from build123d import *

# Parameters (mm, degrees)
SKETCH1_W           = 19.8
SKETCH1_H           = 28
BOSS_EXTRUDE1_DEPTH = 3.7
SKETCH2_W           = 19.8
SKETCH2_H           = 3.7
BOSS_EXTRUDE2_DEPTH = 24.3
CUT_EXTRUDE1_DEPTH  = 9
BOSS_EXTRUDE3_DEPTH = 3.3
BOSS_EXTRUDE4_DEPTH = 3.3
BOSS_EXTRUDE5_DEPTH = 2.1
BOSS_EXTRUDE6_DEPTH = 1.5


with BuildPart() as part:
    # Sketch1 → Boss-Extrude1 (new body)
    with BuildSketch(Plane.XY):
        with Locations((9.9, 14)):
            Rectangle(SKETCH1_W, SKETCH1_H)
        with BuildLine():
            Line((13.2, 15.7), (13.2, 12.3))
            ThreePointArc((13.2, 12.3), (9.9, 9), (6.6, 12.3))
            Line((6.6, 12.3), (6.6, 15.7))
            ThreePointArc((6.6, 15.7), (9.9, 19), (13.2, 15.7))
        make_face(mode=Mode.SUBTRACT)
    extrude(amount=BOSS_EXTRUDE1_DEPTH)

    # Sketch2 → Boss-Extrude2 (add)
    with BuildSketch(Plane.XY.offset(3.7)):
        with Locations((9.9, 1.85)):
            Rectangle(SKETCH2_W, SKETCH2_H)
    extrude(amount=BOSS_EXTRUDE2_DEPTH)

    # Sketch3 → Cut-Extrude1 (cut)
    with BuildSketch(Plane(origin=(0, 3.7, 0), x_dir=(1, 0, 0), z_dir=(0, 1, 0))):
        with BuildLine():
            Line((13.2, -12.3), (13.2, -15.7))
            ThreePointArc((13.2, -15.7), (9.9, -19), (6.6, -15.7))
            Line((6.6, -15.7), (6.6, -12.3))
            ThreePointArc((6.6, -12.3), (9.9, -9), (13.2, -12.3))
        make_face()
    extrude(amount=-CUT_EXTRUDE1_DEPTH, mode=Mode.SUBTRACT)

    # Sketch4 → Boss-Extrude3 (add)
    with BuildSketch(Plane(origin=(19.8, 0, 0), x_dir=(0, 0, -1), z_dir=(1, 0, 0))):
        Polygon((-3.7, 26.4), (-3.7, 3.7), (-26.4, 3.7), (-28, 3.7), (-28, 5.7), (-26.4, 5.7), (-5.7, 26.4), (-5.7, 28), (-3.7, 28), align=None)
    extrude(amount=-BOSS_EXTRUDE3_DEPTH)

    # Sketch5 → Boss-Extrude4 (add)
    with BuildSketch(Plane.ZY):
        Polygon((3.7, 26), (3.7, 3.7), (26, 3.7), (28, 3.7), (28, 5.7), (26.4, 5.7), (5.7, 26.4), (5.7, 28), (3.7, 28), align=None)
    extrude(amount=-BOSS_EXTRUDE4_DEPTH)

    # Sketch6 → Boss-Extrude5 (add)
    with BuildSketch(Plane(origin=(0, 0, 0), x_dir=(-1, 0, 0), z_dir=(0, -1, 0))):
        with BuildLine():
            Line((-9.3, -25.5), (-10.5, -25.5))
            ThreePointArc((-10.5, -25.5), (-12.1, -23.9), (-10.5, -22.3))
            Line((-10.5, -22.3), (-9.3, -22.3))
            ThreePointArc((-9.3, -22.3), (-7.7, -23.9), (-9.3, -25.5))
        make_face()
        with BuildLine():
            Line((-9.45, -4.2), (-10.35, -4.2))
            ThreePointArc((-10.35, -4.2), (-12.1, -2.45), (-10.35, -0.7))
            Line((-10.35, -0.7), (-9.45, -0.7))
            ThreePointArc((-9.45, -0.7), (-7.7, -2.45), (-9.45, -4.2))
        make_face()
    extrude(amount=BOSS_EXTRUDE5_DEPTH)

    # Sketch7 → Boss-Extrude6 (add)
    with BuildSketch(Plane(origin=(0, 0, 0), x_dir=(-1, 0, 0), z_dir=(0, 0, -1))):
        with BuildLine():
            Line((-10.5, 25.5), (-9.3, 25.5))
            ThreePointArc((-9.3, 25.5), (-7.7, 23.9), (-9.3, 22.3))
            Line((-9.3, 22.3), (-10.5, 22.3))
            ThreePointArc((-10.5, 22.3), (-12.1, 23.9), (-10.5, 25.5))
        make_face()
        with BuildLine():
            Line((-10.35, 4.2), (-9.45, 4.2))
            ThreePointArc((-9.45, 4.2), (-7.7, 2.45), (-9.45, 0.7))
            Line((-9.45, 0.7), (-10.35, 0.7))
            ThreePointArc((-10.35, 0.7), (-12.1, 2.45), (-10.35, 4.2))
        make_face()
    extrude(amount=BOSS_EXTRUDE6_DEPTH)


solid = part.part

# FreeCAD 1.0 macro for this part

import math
import FreeCAD as App
import Part
import Sketcher

V = App.Vector
Q = App.Units.Quantity

doc = App.newDocument("Part")
params = doc.addObject("Spreadsheet::Sheet", "Params")
for row, (alias, value) in enumerate([
    ("sketch1_radius", "3.3 mm"),
    ("sketch1_height", "28 mm"),
    ("sketch1_width", "19.8 mm"),
    ("sketch1_height2", "3.4 mm"),
    ("pad1_length", "3.7 mm"),
    ("sketch2_width", "19.8 mm"),
    ("sketch2_height", "3.7 mm"),
    ("pad2_length", "24.3 mm"),
    ("sketch3_radius", "3.3 mm"),
    ("sketch3_height", "3.4 mm"),
    ("pocket1_length", "9 mm"),
    ("sketch4_width", "2 mm"),
    ("sketch4_width2", "24.3 mm"),
    ("sketch4_width3", "1.6 mm"),
    ("pad3_length", "3.3 mm"),
    ("sketch5_width", "2 mm"),
    ("sketch5_width2", "1.6 mm"),
    ("sketch5_width3", "24.3 mm"),
    ("pad4_length", "3.3 mm"),
    ("sketch6_radius", "1.6 mm"),
    ("sketch6_radius2", "1.75 mm"),
    ("sketch6_width", "1.2 mm"),
    ("sketch6_width2", "0.9 mm"),
    ("pad5_length", "2.1 mm"),
    ("sketch7_radius", "1.6 mm"),
    ("sketch7_radius2", "1.75 mm"),
    ("sketch7_width", "1.2 mm"),
    ("sketch7_width2", "0.9 mm"),
    ("pad6_length", "1.5 mm"),
], start=1):
    params.set(f"A{row}", alias)
    params.set(f"B{row}", "=" + value)
    params.setAlias(f"B{row}", alias)

body = doc.addObject("PartDesign::Body", "Body")

# Sketch on XY plane
sketch1 = body.newObject("Sketcher::SketchObject", "Sketch")
sketch1.AttachmentSupport = (doc.getObject("XY_Plane"), [""])
sketch1.MapMode = "FlatFace"
sketch1.addGeometry([
    Part.LineSegment(V(0, 28, 0), V(0, 0, 0)),  # 0
    Part.LineSegment(V(0, 0, 0), V(19.8, 0, 0)),  # 1
    Part.LineSegment(V(19.8, 0, 0), V(19.8, 28, 0)),  # 2
    Part.LineSegment(V(19.8, 28, 0), V(0, 28, 0)),  # 3
    Part.ArcOfCircle(Part.Circle(V(9.9, 15.7, 0), V(0, 0, 1), 3.3), math.radians(0), math.radians(180)),  # 4
    Part.LineSegment(V(13.2, 15.7, 0), V(13.2, 12.3, 0)),  # 5
    Part.ArcOfCircle(Part.Circle(V(9.9, 12.3, 0), V(0, 0, 1), 3.3), math.radians(180), math.radians(360)),  # 6
    Part.LineSegment(V(6.6, 12.3, 0), V(6.6, 15.7, 0)),  # 7
], False)
sketch1.addConstraint([
    Sketcher.Constraint("Coincident", 0, 2, 1, 1),
    Sketcher.Constraint("Coincident", 1, 2, 2, 1),
    Sketcher.Constraint("Coincident", 2, 2, 3, 1),
    Sketcher.Constraint("Coincident", 3, 2, 0, 1),
    Sketcher.Constraint("Tangent", 4, 1, 5, 1),
    Sketcher.Constraint("Tangent", 5, 2, 6, 2),
    Sketcher.Constraint("Tangent", 6, 1, 7, 1),
    Sketcher.Constraint("Tangent", 7, 2, 4, 2),
    Sketcher.Constraint("Vertical", 0),
    Sketcher.Constraint("Horizontal", 1),
    Sketcher.Constraint("Vertical", 2),
    Sketcher.Constraint("Horizontal", 3),
    Sketcher.Constraint("Vertical", 5),
    Sketcher.Constraint("Vertical", 7),
    Sketcher.Constraint("Coincident", 0, 2, -1, 1),
    Sketcher.Constraint("Radius", 4, Q("3.3 mm")),
    Sketcher.Constraint("DistanceY", 0, 2, 0, 1, Q("28 mm")),
    Sketcher.Constraint("DistanceX", 1, 1, 1, 2, Q("19.8 mm")),
    Sketcher.Constraint("DistanceY", 5, 2, 5, 1, Q("3.4 mm")),
    Sketcher.Constraint("DistanceX", -1, 1, 4, 3, Q("9.9 mm")),
    Sketcher.Constraint("DistanceY", -1, 1, 4, 3, Q("15.7 mm")),
])
sketch1.setExpression("Constraints[15]", "Params.sketch1_radius")
sketch1.setExpression("Constraints[16]", "Params.sketch1_height")
sketch1.setExpression("Constraints[17]", "Params.sketch1_width")
sketch1.setExpression("Constraints[18]", "Params.sketch1_height2")
pad1 = body.newObject("PartDesign::Pad", "Pad")
pad1.Profile = sketch1
pad1.setExpression("Length", "Params.pad1_length")

# Sketch on XY plane
sketch2 = body.newObject("Sketcher::SketchObject", "Sketch001")
sketch2.AttachmentSupport = (doc.getObject("XY_Plane"), [""])
sketch2.MapMode = "FlatFace"
sketch2.AttachmentOffset = App.Placement(V(0, 0, 3.7), App.Rotation())
sketch2.addGeometry([
    Part.LineSegment(V(0, 3.7, 0), V(0, 0, 0)),
    Part.LineSegment(V(0, 0, 0), V(19.8, 0, 0)),
    Part.LineSegment(V(19.8, 0, 0), V(19.8, 3.7, 0)),
    Part.LineSegment(V(19.8, 3.7, 0), V(0, 3.7, 0)),
], False)
sketch2.addConstraint([
    Sketcher.Constraint("Coincident", 0, 2, 1, 1),
    Sketcher.Constraint("Coincident", 1, 2, 2, 1),
    Sketcher.Constraint("Coincident", 2, 2, 3, 1),
    Sketcher.Constraint("Coincident", 3, 2, 0, 1),
    Sketcher.Constraint("Vertical", 0),
    Sketcher.Constraint("Horizontal", 1),
    Sketcher.Constraint("Vertical", 2),
    Sketcher.Constraint("Horizontal", 3),
    Sketcher.Constraint("Coincident", 0, 2, -1, 1),
    Sketcher.Constraint("DistanceX", 1, 1, 1, 2, Q("19.8 mm")),
    Sketcher.Constraint("DistanceY", 0, 2, 0, 1, Q("3.7 mm")),
])
sketch2.setExpression("Constraints[9]", "Params.sketch2_width")
sketch2.setExpression("Constraints[10]", "Params.sketch2_height")
pad2 = body.newObject("PartDesign::Pad", "Pad001")
pad2.Profile = sketch2
pad2.setExpression("Length", "Params.pad2_length")

# Sketch on XZ plane
sketch3 = body.newObject("Sketcher::SketchObject", "Sketch002")
sketch3.AttachmentSupport = (doc.getObject("XZ_Plane"), [""])
sketch3.MapMode = "FlatFace"
sketch3.AttachmentOffset = App.Placement(V(0, 0, -3.7), App.Rotation())
sketch3.addGeometry([
    Part.LineSegment(V(13.2, 15.7, 0), V(13.2, 12.3, 0)),
    Part.ArcOfCircle(Part.Circle(V(9.9, 12.3, 0), V(0, 0, 1), 3.3), math.radians(180), math.radians(360)),
    Part.LineSegment(V(6.6, 12.3, 0), V(6.6, 15.7, 0)),
    Part.ArcOfCircle(Part.Circle(V(9.9, 15.7, 0), V(0, 0, 1), 3.3), math.radians(0), math.radians(180)),
], False)
sketch3.addConstraint([
    Sketcher.Constraint("Tangent", 0, 2, 1, 2),
    Sketcher.Constraint("Tangent", 1, 1, 2, 1),
    Sketcher.Constraint("Tangent", 2, 2, 3, 2),
    Sketcher.Constraint("Tangent", 3, 1, 0, 1),
    Sketcher.Constraint("Vertical", 0),
    Sketcher.Constraint("Vertical", 2),
    Sketcher.Constraint("Radius", 1, Q("3.3 mm")),
    Sketcher.Constraint("DistanceY", 0, 2, 0, 1, Q("3.4 mm")),
    Sketcher.Constraint("DistanceX", -1, 1, 1, 3, Q("9.9 mm")),
    Sketcher.Constraint("DistanceY", -1, 1, 1, 3, Q("12.3 mm")),
])
sketch3.setExpression("Constraints[6]", "Params.sketch3_radius")
sketch3.setExpression("Constraints[7]", "Params.sketch3_height")
pocket1 = body.newObject("PartDesign::Pocket", "Pocket")
pocket1.Profile = sketch3
pocket1.setExpression("Length", "Params.pocket1_length")
pocket1.Reversed = True

# Sketch on YZ plane
sketch4 = body.newObject("Sketcher::SketchObject", "Sketch003")
sketch4.AttachmentSupport = (doc.getObject("YZ_Plane"), [""])
sketch4.MapMode = "FlatFace"
sketch4.AttachmentOffset = App.Placement(V(0, 0, 19.8), App.Rotation())
sketch4.addGeometry([
    Part.LineSegment(V(3.7, 3.7, 0), V(28, 3.7, 0)),  # 0
    Part.LineSegment(V(28, 3.7, 0), V(28, 5.7, 0)),  # 1
    Part.LineSegment(V(28, 5.7, 0), V(26.4, 5.7, 0)),  # 2
    Part.LineSegment(V(26.4, 5.7, 0), V(5.7, 26.4, 0)),  # 3
    Part.LineSegment(V(5.7, 26.4, 0), V(5.7, 28, 0)),  # 4
    Part.LineSegment(V(5.7, 28, 0), V(3.7, 28, 0)),  # 5
    Part.LineSegment(V(3.7, 28, 0), V(3.7, 3.7, 0)),  # 6
], False)
sketch4.addConstraint([
    Sketcher.Constraint("Coincident", 0, 2, 1, 1),
    Sketcher.Constraint("Coincident", 1, 2, 2, 1),
    Sketcher.Constraint("Coincident", 2, 2, 3, 1),
    Sketcher.Constraint("Coincident", 3, 2, 4, 1),
    Sketcher.Constraint("Coincident", 4, 2, 5, 1),
    Sketcher.Constraint("Coincident", 5, 2, 6, 1),
    Sketcher.Constraint("Coincident", 6, 2, 0, 1),
    Sketcher.Constraint("Horizontal", 0),
    Sketcher.Constraint("Vertical", 1),
    Sketcher.Constraint("Horizontal", 2),
    Sketcher.Constraint("Vertical", 4),
    Sketcher.Constraint("Horizontal", 5),
    Sketcher.Constraint("Vertical", 6),
    Sketcher.Constraint("Equal", 5, 1),
    Sketcher.Constraint("Equal", 2, 4),
    Sketcher.Constraint("Equal", 0, 6),
    Sketcher.Constraint("DistanceX", 5, 2, 5, 1, Q("2 mm")),
    Sketcher.Constraint("DistanceX", 0, 1, 0, 2, Q("24.3 mm")),
    Sketcher.Constraint("DistanceX", 2, 2, 2, 1, Q("1.6 mm")),
    Sketcher.Constraint("DistanceX", -1, 1, 0, 2, Q("28 mm")),
    Sketcher.Constraint("DistanceY", -1, 1, 4, 2, Q("28 mm")),
])
sketch4.setExpression("Constraints[16]", "Params.sketch4_width")
sketch4.setExpression("Constraints[17]", "Params.sketch4_width2")
sketch4.setExpression("Constraints[18]", "Params.sketch4_width3")
pad3 = body.newObject("PartDesign::Pad", "Pad002")
pad3.Profile = sketch4
pad3.setExpression("Length", "Params.pad3_length")
pad3.Reversed = True

# Sketch on YZ plane
sketch5 = body.newObject("Sketcher::SketchObject", "Sketch004")
sketch5.AttachmentSupport = (doc.getObject("YZ_Plane"), [""])
sketch5.MapMode = "FlatFace"
sketch5.addGeometry([
    Part.LineSegment(V(3.7, 3.7, 0), V(3.7, 28, 0)),  # 0
    Part.LineSegment(V(3.7, 28, 0), V(5.7, 28, 0)),  # 1
    Part.LineSegment(V(5.7, 28, 0), V(5.7, 26.4, 0)),  # 2
    Part.LineSegment(V(5.7, 26.4, 0), V(26.4, 5.7, 0)),  # 3
    Part.LineSegment(V(26.4, 5.7, 0), V(28, 5.7, 0)),  # 4
    Part.LineSegment(V(28, 5.7, 0), V(28, 3.7, 0)),  # 5
    Part.LineSegment(V(28, 3.7, 0), V(3.7, 3.7, 0)),  # 6
], False)
sketch5.addConstraint([
    Sketcher.Constraint("Coincident", 0, 2, 1, 1),
    Sketcher.Constraint("Coincident", 1, 2, 2, 1),
    Sketcher.Constraint("Coincident", 2, 2, 3, 1),
    Sketcher.Constraint("Coincident", 3, 2, 4, 1),
    Sketcher.Constraint("Coincident", 4, 2, 5, 1),
    Sketcher.Constraint("Coincident", 5, 2, 6, 1),
    Sketcher.Constraint("Coincident", 6, 2, 0, 1),
    Sketcher.Constraint("Vertical", 0),
    Sketcher.Constraint("Horizontal", 1),
    Sketcher.Constraint("Vertical", 2),
    Sketcher.Constraint("Horizontal", 4),
    Sketcher.Constraint("Vertical", 5),
    Sketcher.Constraint("Horizontal", 6),
    Sketcher.Constraint("Equal", 6, 0),
    Sketcher.Constraint("Equal", 4, 2),
    Sketcher.Constraint("Equal", 1, 5),
    Sketcher.Constraint("DistanceX", 1, 1, 1, 2, Q("2 mm")),
    Sketcher.Constraint("DistanceX", 4, 1, 4, 2, Q("1.6 mm")),
    Sketcher.Constraint("DistanceX", 6, 2, 6, 1, Q("24.3 mm")),
    Sketcher.Constraint("DistanceY", -1, 1, 0, 2, Q("28 mm")),
    Sketcher.Constraint("DistanceX", -1, 1, 4, 2, Q("28 mm")),
])
sketch5.setExpression("Constraints[16]", "Params.sketch5_width")
sketch5.setExpression("Constraints[17]", "Params.sketch5_width2")
sketch5.setExpression("Constraints[18]", "Params.sketch5_width3")
pad4 = body.newObject("PartDesign::Pad", "Pad003")
pad4.Profile = sketch5
pad4.setExpression("Length", "Params.pad4_length")

# Sketch on XZ plane
sketch6 = body.newObject("Sketcher::SketchObject", "Sketch005")
sketch6.AttachmentSupport = (doc.getObject("XZ_Plane"), [""])
sketch6.MapMode = "FlatFace"
sketch6.addGeometry([
    Part.LineSegment(V(10.5, 25.5, 0), V(9.3, 25.5, 0)),  # 0
    Part.ArcOfCircle(Part.Circle(V(9.3, 23.9, 0), V(0, 0, 1), 1.6), math.radians(90), math.radians(270)),  # 1
    Part.LineSegment(V(9.3, 22.3, 0), V(10.5, 22.3, 0)),  # 2
    Part.ArcOfCircle(Part.Circle(V(10.5, 23.9, 0), V(0, 0, 1), 1.6), math.radians(-90), math.radians(90)),  # 3
    Part.LineSegment(V(10.3, 4.2, 0), V(9.4, 4.2, 0)),  # 4
    Part.ArcOfCircle(Part.Circle(V(9.4, 2.5, 0), V(0, 0, 1), 1.8), math.radians(90), math.radians(270)),  # 5
    Part.LineSegment(V(9.4, 0.7, 0), V(10.3, 0.7, 0)),  # 6
    Part.ArcOfCircle(Part.Circle(V(10.3, 2.5, 0), V(0, 0, 1), 1.8), math.radians(-90), math.radians(90)),  # 7
], False)
sketch6.addConstraint([
    Sketcher.Constraint("Tangent", 0, 2, 1, 1),
    Sketcher.Constraint("Tangent", 1, 2, 2, 1),
    Sketcher.Constraint("Tangent", 2, 2, 3, 1),
    Sketcher.Constraint("Tangent", 3, 2, 0, 1),
    Sketcher.Constraint("Tangent", 4, 2, 5, 1),
    Sketcher.Constraint("Tangent", 5, 2, 6, 1),
    Sketcher.Constraint("Tangent", 6, 2, 7, 1),
    Sketcher.Constraint("Tangent", 7, 2, 4, 1),
    Sketcher.Constraint("Horizontal", 0),
    Sketcher.Constraint("Horizontal", 2),
    Sketcher.Constraint("Horizontal", 4),
    Sketcher.Constraint("Horizontal", 6),
    Sketcher.Constraint("Radius", 1, Q("1.6 mm")),
    Sketcher.Constraint("Radius", 5, Q("1.75 mm")),
    Sketcher.Constraint("DistanceX", 0, 2, 0, 1, Q("1.2 mm")),
    Sketcher.Constraint("DistanceX", 4, 2, 4, 1, Q("0.9 mm")),
    Sketcher.Constraint("DistanceX", -1, 1, 1, 3, Q("9.3 mm")),
    Sketcher.Constraint("DistanceY", -1, 1, 1, 3, Q("23.9 mm")),
    Sketcher.Constraint("DistanceY", -1, 1, 4, 2, Q("4.2 mm")),
    Sketcher.Constraint("DistanceX", -1, 1, 5, 3, Q("9.45 mm")),
])
sketch6.setExpression("Constraints[12]", "Params.sketch6_radius")
sketch6.setExpression("Constraints[13]", "Params.sketch6_radius2")
sketch6.setExpression("Constraints[14]", "Params.sketch6_width")
sketch6.setExpression("Constraints[15]", "Params.sketch6_width2")
pad5 = body.newObject("PartDesign::Pad", "Pad004")
pad5.Profile = sketch6
pad5.setExpression("Length", "Params.pad5_length")

# Sketch on XY plane
sketch7 = body.newObject("Sketcher::SketchObject", "Sketch006")
sketch7.AttachmentSupport = (doc.getObject("XY_Plane"), [""])
sketch7.MapMode = "FlatFace"
sketch7.addGeometry([
    Part.LineSegment(V(9.3, 25.5, 0), V(10.5, 25.5, 0)),  # 0
    Part.ArcOfCircle(Part.Circle(V(10.5, 23.9, 0), V(0, 0, 1), 1.6), math.radians(-90), math.radians(90)),  # 1
    Part.LineSegment(V(10.5, 22.3, 0), V(9.3, 22.3, 0)),  # 2
    Part.ArcOfCircle(Part.Circle(V(9.3, 23.9, 0), V(0, 0, 1), 1.6), math.radians(90), math.radians(270)),  # 3
    Part.LineSegment(V(9.4, 4.2, 0), V(10.3, 4.2, 0)),  # 4
    Part.ArcOfCircle(Part.Circle(V(10.3, 2.5, 0), V(0, 0, 1), 1.8), math.radians(-90), math.radians(90)),  # 5
    Part.LineSegment(V(10.3, 0.7, 0), V(9.4, 0.7, 0)),  # 6
    Part.ArcOfCircle(Part.Circle(V(9.4, 2.5, 0), V(0, 0, 1), 1.8), math.radians(90), math.radians(270)),  # 7
], False)
sketch7.addConstraint([
    Sketcher.Constraint("Tangent", 0, 2, 1, 2),
    Sketcher.Constraint("Tangent", 1, 1, 2, 1),
    Sketcher.Constraint("Tangent", 2, 2, 3, 2),
    Sketcher.Constraint("Tangent", 3, 1, 0, 1),
    Sketcher.Constraint("Tangent", 4, 2, 5, 2),
    Sketcher.Constraint("Tangent", 5, 1, 6, 1),
    Sketcher.Constraint("Tangent", 6, 2, 7, 2),
    Sketcher.Constraint("Tangent", 7, 1, 4, 1),
    Sketcher.Constraint("Horizontal", 0),
    Sketcher.Constraint("Horizontal", 2),
    Sketcher.Constraint("Horizontal", 4),
    Sketcher.Constraint("Horizontal", 6),
    Sketcher.Constraint("Radius", 1, Q("1.6 mm")),
    Sketcher.Constraint("Radius", 5, Q("1.75 mm")),
    Sketcher.Constraint("DistanceX", 0, 1, 0, 2, Q("1.2 mm")),
    Sketcher.Constraint("DistanceX", 4, 1, 4, 2, Q("0.9 mm")),
    Sketcher.Constraint("DistanceX", -1, 1, 1, 3, Q("10.5 mm")),
    Sketcher.Constraint("DistanceY", -1, 1, 1, 3, Q("23.9 mm")),
    Sketcher.Constraint("DistanceY", -1, 1, 4, 2, Q("4.2 mm")),
    Sketcher.Constraint("DistanceX", -1, 1, 5, 3, Q("10.35 mm")),
])
sketch7.setExpression("Constraints[12]", "Params.sketch7_radius")
sketch7.setExpression("Constraints[13]", "Params.sketch7_radius2")
sketch7.setExpression("Constraints[14]", "Params.sketch7_width")
sketch7.setExpression("Constraints[15]", "Params.sketch7_width2")
pad6 = body.newObject("PartDesign::Pad", "Pad005")
pad6.Profile = sketch7
pad6.setExpression("Length", "Params.pad6_length")
pad6.Reversed = True

doc.recompute()
